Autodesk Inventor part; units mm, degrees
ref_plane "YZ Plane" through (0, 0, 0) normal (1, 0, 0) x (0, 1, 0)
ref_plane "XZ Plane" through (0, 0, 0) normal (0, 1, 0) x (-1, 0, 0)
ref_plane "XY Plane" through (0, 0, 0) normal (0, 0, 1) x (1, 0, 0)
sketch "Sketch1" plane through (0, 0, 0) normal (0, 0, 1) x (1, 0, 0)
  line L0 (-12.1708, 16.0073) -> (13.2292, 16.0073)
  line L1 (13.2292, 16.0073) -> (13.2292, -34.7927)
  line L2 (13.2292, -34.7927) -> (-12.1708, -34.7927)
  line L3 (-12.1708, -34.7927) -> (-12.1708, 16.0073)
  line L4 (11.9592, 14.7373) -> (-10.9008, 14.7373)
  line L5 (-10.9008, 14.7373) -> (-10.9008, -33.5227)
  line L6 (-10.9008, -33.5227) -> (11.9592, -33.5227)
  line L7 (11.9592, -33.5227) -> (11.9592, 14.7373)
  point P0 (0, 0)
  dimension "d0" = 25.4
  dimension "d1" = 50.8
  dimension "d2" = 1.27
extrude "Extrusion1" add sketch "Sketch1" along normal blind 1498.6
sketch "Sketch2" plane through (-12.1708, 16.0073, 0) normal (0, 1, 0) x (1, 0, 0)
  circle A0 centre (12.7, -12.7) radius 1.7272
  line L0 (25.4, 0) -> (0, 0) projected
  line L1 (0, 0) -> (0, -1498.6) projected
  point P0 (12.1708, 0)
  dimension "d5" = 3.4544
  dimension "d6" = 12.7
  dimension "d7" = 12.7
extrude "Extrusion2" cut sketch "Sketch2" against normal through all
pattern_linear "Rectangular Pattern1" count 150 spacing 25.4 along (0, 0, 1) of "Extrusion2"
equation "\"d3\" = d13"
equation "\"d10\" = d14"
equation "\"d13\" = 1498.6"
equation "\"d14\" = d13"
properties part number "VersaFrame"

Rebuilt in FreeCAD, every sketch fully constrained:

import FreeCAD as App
import Part
import Sketcher
from FreeCAD import Vector
Q = App.Units.Quantity

doc = App.newDocument("Part")
body = doc.addObject("PartDesign::Body", "Body")

sketch1 = body.newObject("Sketcher::SketchObject", "Sketch")
sketch1.AttachmentSupport = (doc.getObject("XY_Plane"), [""])
sketch1.MapMode = "FlatFace"
sketch1.addGeometry([
    Part.LineSegment(Vector(13.2292, 16.0073, 0), Vector(-12.1708, 16.0073, 0)),
    Part.LineSegment(Vector(-12.1708, 16.0073, 0), Vector(-12.1708, -34.7927, 0)),
    Part.LineSegment(Vector(-12.1708, -34.7927, 0), Vector(13.2292, -34.7927, 0)),
    Part.LineSegment(Vector(13.2292, -34.7927, 0), Vector(13.2292, 16.0073, 0)),
    Part.LineSegment(Vector(-10.9008, 14.7373, 0), Vector(11.9592, 14.7373, 0)),
    Part.LineSegment(Vector(11.9592, 14.7373, 0), Vector(11.9592, -33.5227, 0)),
    Part.LineSegment(Vector(11.9592, -33.5227, 0), Vector(-10.9008, -33.5227, 0)),
    Part.LineSegment(Vector(-10.9008, -33.5227, 0), Vector(-10.9008, 14.7373, 0)),
], False)
sketch1.addConstraint([
    Sketcher.Constraint("Coincident", 0, 2, 1, 1),
    Sketcher.Constraint("Coincident", 1, 2, 2, 1),
    Sketcher.Constraint("Coincident", 2, 2, 3, 1),
    Sketcher.Constraint("Coincident", 3, 2, 0, 1),
    Sketcher.Constraint("Coincident", 4, 2, 5, 1),
    Sketcher.Constraint("Coincident", 5, 2, 6, 1),
    Sketcher.Constraint("Coincident", 6, 2, 7, 1),
    Sketcher.Constraint("Coincident", 7, 2, 4, 1),
    Sketcher.Constraint("Horizontal", 0),
    Sketcher.Constraint("Vertical", 1),
    Sketcher.Constraint("Horizontal", 2),
    Sketcher.Constraint("Vertical", 3),
    Sketcher.Constraint("Horizontal", 4),
    Sketcher.Constraint("Vertical", 5),
    Sketcher.Constraint("Horizontal", 6),
    Sketcher.Constraint("Vertical", 7),
    Sketcher.Constraint("DistanceX", 0, 2, 0, 1, Q("1 in")),
    Sketcher.Constraint("DistanceY", 1, 2, 1, 1, Q("2 in")),
    Sketcher.Constraint("DistanceX", 4, 2, 3, 2, Q("0.05 in")),
    Sketcher.Constraint("DistanceY", 4, 2, 3, 2, Q("0.05 in")),
    Sketcher.Constraint("DistanceY", 2, 2, 5, 2, Q("0.05 in")),
    Sketcher.Constraint("DistanceX", 1, 2, 6, 2, Q("0.05 in")),
    Sketcher.Constraint("DistanceY", -1, 1, 0, 2, Q("0.6302 in")),
    Sketcher.Constraint("DistanceX", 0, 2, -1, 1, Q("12.1708 mm")),
])
pad1 = body.newObject("PartDesign::Pad", "Pad")
pad1.Profile = sketch1
pad1.Length = Q("59 in")

sketch2 = body.newObject("Sketcher::SketchObject", "Sketch001")
sketch2.AttachmentSupport = (doc.getObject("XZ_Plane"), [""])
sketch2.MapMode = "FlatFace"
sketch2.AttachmentOffset = App.Placement(Vector(0, 0, -0.6302087 * 25.4), App.Rotation())
sketch2.addGeometry(Part.Circle(Vector(0.5292, 12.7, 0), Vector(0, 0, 1), 1.7272), False)
sketch2.addConstraint([
    Sketcher.Constraint("Diameter", 0, Q("0.136 in")),
    Sketcher.Constraint("DistanceY", -1, 1, 0, 3, Q("0.5 in")),
    Sketcher.Constraint("DistanceX", -1, 1, 0, 3, Q("0.5292 mm")),
])
pocket1 = body.newObject("PartDesign::Pocket", "Pocket")
pocket1.Profile = sketch2
pocket1.Type = "ThroughAll"
pocket1.Reversed = True
doc.recompute()

linearpattern = body.newObject("PartDesign::LinearPattern", "LinearPattern")
linearpattern.Originals = [pocket1]
linearpattern.Direction = (doc.getObject("Z_Axis"), [""])
linearpattern.Mode = "offset"
linearpattern.Offset = Q("1 in")
linearpattern.Occurrences = 150
body.Tip = linearpattern

doc.recompute()
